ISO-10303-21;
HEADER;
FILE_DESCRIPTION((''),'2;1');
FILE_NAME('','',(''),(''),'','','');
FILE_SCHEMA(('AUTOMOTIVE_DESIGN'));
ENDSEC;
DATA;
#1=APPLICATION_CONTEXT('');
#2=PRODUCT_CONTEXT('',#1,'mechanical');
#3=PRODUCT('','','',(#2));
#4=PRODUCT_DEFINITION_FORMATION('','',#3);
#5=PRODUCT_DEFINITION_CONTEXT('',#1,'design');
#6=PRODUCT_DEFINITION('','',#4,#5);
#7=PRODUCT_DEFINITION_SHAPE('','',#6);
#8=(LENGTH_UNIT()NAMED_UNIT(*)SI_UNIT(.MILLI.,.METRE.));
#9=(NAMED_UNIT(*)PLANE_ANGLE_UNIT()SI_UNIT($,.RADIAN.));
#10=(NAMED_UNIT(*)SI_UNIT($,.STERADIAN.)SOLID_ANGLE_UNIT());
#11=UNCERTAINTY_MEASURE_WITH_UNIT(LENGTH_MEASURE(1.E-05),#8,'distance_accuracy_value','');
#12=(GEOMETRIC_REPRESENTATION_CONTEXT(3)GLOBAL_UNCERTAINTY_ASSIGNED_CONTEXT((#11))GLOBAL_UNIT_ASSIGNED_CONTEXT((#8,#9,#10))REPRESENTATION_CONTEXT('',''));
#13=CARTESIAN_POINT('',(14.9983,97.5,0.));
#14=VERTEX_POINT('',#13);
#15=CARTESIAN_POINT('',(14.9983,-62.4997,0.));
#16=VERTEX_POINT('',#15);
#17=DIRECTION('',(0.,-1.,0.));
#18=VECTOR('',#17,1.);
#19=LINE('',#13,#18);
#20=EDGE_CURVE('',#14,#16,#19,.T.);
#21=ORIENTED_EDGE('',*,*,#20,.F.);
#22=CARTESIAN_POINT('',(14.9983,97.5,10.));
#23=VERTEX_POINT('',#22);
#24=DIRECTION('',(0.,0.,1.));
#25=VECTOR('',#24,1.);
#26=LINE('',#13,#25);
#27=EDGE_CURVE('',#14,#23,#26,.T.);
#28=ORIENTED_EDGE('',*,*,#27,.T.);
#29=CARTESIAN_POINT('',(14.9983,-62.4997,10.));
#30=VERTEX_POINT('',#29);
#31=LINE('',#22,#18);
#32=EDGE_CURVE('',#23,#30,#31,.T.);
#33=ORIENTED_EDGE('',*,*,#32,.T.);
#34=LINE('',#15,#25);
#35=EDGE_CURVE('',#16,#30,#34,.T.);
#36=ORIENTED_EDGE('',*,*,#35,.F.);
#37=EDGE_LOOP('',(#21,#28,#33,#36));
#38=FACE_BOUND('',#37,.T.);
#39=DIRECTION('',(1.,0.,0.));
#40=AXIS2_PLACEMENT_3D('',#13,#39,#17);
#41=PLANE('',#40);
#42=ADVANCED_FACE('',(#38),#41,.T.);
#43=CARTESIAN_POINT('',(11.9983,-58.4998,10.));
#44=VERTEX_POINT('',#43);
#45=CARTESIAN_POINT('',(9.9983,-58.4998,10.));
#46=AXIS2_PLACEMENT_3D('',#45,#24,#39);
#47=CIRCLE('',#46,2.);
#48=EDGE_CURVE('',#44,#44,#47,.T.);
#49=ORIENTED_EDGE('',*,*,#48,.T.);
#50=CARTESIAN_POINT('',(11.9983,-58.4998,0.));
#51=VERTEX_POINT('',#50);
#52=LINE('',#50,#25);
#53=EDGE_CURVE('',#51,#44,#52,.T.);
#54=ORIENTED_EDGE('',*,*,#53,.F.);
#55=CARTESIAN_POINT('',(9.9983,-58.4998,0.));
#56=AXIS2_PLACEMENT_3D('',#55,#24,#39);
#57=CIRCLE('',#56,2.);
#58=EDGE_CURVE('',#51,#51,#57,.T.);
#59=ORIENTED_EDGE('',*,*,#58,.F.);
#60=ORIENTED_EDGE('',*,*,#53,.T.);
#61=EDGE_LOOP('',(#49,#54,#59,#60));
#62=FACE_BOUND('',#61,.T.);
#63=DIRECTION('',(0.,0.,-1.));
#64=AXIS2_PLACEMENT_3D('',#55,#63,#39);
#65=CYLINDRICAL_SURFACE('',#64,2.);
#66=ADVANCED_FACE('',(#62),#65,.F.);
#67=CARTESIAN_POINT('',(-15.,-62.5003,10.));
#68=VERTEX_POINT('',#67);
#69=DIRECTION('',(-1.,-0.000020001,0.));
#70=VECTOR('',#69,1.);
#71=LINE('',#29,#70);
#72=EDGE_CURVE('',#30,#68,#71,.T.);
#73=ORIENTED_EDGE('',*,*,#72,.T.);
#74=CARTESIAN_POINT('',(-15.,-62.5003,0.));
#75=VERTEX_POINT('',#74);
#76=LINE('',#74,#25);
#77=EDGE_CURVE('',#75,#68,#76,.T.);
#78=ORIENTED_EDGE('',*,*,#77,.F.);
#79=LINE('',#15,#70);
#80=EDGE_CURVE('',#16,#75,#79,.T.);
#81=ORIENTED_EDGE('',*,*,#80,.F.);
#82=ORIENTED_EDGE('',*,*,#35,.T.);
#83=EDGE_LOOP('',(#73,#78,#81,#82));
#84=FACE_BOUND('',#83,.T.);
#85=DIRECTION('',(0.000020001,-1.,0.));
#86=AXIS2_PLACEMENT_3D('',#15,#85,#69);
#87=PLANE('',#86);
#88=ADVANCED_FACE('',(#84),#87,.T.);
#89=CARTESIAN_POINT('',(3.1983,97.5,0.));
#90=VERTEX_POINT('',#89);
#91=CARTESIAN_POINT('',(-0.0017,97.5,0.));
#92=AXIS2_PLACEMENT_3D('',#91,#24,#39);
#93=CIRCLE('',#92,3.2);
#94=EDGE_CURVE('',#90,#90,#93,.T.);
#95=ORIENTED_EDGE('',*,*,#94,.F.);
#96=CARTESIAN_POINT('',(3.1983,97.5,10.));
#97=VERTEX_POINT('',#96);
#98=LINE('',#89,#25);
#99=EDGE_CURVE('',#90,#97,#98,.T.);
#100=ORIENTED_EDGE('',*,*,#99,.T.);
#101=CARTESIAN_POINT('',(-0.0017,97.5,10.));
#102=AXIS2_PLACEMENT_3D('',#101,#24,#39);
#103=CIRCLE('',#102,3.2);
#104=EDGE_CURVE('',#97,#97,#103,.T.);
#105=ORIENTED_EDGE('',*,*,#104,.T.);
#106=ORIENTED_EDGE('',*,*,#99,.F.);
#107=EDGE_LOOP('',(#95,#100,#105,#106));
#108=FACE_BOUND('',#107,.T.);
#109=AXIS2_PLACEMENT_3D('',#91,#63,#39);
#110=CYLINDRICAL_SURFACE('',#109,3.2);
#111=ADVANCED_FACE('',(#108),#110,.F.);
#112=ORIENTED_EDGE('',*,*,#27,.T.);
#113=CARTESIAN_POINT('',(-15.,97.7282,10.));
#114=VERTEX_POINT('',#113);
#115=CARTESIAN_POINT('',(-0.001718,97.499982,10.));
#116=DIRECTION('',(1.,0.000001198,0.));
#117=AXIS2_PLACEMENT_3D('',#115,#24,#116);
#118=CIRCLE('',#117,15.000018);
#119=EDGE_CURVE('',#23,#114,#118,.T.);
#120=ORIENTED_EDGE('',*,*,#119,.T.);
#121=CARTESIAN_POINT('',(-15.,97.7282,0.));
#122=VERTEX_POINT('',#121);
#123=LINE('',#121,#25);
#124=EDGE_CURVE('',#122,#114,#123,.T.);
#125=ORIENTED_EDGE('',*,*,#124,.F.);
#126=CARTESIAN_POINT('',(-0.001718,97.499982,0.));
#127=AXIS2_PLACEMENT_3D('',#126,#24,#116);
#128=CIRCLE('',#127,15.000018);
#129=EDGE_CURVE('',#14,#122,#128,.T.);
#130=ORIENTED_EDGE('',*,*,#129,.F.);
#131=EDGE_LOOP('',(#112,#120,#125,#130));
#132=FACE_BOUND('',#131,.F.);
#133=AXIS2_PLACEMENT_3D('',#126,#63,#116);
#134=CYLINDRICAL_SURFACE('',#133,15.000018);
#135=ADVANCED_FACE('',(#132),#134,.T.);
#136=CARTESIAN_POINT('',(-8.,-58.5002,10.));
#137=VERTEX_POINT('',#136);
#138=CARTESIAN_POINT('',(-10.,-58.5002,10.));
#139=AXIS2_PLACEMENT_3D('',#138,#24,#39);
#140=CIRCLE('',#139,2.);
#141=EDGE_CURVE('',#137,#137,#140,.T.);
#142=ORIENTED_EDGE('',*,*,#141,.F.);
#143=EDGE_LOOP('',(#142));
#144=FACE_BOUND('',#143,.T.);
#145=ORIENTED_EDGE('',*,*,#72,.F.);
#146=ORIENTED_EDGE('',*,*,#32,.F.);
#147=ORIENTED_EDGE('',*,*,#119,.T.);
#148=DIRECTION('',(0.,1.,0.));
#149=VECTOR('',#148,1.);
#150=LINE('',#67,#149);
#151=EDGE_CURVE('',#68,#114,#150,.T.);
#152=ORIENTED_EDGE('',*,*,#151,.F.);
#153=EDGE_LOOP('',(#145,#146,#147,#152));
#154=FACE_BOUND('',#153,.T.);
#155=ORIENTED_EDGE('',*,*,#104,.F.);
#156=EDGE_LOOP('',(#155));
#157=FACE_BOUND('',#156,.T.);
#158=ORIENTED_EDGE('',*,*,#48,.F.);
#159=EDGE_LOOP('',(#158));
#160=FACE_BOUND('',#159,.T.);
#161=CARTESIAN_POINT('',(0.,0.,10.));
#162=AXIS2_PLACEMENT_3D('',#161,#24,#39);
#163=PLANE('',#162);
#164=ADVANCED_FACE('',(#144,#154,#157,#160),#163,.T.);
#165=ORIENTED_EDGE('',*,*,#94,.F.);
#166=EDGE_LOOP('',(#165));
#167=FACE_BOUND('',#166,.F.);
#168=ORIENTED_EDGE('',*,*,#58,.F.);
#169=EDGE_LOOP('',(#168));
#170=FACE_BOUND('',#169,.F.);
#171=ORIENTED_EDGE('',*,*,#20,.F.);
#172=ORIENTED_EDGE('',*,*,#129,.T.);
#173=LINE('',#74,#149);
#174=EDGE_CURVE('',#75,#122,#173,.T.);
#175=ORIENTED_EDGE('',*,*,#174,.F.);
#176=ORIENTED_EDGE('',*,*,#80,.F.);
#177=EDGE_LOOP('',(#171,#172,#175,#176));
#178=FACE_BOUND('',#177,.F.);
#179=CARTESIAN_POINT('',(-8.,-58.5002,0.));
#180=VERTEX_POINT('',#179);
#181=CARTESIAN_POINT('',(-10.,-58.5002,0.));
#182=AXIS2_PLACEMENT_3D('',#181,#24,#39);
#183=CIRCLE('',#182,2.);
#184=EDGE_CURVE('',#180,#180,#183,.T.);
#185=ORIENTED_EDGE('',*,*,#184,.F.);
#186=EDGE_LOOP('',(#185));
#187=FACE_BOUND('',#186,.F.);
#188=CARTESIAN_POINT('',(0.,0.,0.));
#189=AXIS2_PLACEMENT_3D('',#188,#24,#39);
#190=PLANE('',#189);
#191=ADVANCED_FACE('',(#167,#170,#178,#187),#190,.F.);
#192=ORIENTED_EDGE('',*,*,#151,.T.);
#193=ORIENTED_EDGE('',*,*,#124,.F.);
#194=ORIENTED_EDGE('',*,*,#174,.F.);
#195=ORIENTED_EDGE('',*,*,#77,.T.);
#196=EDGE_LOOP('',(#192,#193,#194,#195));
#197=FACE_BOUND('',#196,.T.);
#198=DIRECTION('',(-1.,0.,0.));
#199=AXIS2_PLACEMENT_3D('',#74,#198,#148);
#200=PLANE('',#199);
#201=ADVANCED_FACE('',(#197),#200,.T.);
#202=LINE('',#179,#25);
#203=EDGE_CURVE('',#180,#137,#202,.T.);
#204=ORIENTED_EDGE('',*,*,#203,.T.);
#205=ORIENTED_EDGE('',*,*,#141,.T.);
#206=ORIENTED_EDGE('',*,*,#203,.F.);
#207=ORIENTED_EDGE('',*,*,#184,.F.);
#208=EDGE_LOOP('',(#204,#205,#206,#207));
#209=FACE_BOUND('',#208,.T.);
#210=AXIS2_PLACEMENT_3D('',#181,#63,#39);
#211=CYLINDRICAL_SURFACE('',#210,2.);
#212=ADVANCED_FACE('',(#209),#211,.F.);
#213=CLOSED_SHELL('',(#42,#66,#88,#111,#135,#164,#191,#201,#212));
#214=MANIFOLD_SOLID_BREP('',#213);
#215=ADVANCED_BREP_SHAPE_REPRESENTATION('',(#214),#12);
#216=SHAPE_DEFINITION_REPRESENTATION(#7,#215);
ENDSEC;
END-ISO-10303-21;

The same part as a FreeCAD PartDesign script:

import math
import FreeCAD as App
import Part
import Sketcher

V = App.Vector
Q = App.Units.Quantity

doc = App.newDocument("Part")
params = doc.addObject("Spreadsheet::Sheet", "Params")
for row, (alias, value) in enumerate([
    ("sketch1_diameter", "4 mm"),
    ("sketch1_radius", "15 mm"),
    ("sketch1_diameter2", "6.4 mm"),
    ("pad1_length", "10 mm"),
], start=1):
    params.set(f"A{row}", alias)
    params.set(f"B{row}", "=" + value)
    params.setAlias(f"B{row}", alias)

body = doc.addObject("PartDesign::Body", "Body")

sketch1 = body.newObject("Sketcher::SketchObject", "Sketch")
sketch1.AttachmentSupport = (doc.getObject("XY_Plane"), [""])
sketch1.MapMode = "FlatFace"
sketch1.addGeometry([
    Part.LineSegment(V(15, -62.5, 0), V(15, 97.5, 0)),
    Part.ArcOfCircle(Part.Circle(V(0, 97.5, 0), V(0, 0, 1), 15), math.radians(0), math.radians(179)),
    Part.LineSegment(V(-15, 97.7, 0), V(-15, -62.5, 0)),
    Part.LineSegment(V(-15, -62.5, 0), V(15, -62.5, 0)),
    Part.Circle(V(-10, -58.5, 0), V(0, 0, 1), 2),
    Part.Circle(V(10, -58.5, 0), V(0, 0, 1), 2),
    Part.Circle(V(0, 97.5, 0), V(0, 0, 1), 3.2),
], False)
sketch1.addConstraint([
    Sketcher.Constraint("Tangent", 0, 2, 1, 1),
    Sketcher.Constraint("Coincident", 1, 2, 2, 1),
    Sketcher.Constraint("Coincident", 2, 2, 3, 1),
    Sketcher.Constraint("Coincident", 3, 2, 0, 1),
    Sketcher.Constraint("Vertical", 0),
    Sketcher.Constraint("Vertical", 2),
    Sketcher.Constraint("Coincident", 6, 3, 1, 3),
    Sketcher.Constraint("Equal", 4, 5),
    Sketcher.Constraint("Diameter", 4, 4.0),
    Sketcher.Constraint("Radius", 1, 15.0),
    Sketcher.Constraint("Diameter", 6, 6.4),
    Sketcher.Constraint("DistanceX", 1, 2, -1, 1, 15.0),
    Sketcher.Constraint("DistanceX", 5, 3, 0, 2, 5.0),
    Sketcher.Constraint("DistanceX", 1, 2, 4, 3, 5.0),
    Sketcher.Constraint("DistanceY", 2, 2, 4, 3, 4.0),
    Sketcher.Constraint("DistanceY", 3, 2, 5, 3, 4.0),
    Sketcher.Constraint("Angle", 3, Q("0.0011 deg")),
    Sketcher.Constraint("DistanceY", 0, 1, 0, 2, 159.9997),
    Sketcher.Constraint("DistanceY", -1, 1, 1, 3, 97.5),
    Sketcher.Constraint("DistanceY", 2, 2, 2, 1, 160.2285),
])
sketch1.setExpression("Constraints[8]", "Params.sketch1_diameter")
sketch1.setExpression("Constraints[9]", "Params.sketch1_radius")
sketch1.setExpression("Constraints[10]", "Params.sketch1_diameter2")
pad1 = body.newObject("PartDesign::Pad", "Pad")
pad1.Profile = sketch1
pad1.setExpression("Length", "Params.pad1_length")

doc.recompute()
